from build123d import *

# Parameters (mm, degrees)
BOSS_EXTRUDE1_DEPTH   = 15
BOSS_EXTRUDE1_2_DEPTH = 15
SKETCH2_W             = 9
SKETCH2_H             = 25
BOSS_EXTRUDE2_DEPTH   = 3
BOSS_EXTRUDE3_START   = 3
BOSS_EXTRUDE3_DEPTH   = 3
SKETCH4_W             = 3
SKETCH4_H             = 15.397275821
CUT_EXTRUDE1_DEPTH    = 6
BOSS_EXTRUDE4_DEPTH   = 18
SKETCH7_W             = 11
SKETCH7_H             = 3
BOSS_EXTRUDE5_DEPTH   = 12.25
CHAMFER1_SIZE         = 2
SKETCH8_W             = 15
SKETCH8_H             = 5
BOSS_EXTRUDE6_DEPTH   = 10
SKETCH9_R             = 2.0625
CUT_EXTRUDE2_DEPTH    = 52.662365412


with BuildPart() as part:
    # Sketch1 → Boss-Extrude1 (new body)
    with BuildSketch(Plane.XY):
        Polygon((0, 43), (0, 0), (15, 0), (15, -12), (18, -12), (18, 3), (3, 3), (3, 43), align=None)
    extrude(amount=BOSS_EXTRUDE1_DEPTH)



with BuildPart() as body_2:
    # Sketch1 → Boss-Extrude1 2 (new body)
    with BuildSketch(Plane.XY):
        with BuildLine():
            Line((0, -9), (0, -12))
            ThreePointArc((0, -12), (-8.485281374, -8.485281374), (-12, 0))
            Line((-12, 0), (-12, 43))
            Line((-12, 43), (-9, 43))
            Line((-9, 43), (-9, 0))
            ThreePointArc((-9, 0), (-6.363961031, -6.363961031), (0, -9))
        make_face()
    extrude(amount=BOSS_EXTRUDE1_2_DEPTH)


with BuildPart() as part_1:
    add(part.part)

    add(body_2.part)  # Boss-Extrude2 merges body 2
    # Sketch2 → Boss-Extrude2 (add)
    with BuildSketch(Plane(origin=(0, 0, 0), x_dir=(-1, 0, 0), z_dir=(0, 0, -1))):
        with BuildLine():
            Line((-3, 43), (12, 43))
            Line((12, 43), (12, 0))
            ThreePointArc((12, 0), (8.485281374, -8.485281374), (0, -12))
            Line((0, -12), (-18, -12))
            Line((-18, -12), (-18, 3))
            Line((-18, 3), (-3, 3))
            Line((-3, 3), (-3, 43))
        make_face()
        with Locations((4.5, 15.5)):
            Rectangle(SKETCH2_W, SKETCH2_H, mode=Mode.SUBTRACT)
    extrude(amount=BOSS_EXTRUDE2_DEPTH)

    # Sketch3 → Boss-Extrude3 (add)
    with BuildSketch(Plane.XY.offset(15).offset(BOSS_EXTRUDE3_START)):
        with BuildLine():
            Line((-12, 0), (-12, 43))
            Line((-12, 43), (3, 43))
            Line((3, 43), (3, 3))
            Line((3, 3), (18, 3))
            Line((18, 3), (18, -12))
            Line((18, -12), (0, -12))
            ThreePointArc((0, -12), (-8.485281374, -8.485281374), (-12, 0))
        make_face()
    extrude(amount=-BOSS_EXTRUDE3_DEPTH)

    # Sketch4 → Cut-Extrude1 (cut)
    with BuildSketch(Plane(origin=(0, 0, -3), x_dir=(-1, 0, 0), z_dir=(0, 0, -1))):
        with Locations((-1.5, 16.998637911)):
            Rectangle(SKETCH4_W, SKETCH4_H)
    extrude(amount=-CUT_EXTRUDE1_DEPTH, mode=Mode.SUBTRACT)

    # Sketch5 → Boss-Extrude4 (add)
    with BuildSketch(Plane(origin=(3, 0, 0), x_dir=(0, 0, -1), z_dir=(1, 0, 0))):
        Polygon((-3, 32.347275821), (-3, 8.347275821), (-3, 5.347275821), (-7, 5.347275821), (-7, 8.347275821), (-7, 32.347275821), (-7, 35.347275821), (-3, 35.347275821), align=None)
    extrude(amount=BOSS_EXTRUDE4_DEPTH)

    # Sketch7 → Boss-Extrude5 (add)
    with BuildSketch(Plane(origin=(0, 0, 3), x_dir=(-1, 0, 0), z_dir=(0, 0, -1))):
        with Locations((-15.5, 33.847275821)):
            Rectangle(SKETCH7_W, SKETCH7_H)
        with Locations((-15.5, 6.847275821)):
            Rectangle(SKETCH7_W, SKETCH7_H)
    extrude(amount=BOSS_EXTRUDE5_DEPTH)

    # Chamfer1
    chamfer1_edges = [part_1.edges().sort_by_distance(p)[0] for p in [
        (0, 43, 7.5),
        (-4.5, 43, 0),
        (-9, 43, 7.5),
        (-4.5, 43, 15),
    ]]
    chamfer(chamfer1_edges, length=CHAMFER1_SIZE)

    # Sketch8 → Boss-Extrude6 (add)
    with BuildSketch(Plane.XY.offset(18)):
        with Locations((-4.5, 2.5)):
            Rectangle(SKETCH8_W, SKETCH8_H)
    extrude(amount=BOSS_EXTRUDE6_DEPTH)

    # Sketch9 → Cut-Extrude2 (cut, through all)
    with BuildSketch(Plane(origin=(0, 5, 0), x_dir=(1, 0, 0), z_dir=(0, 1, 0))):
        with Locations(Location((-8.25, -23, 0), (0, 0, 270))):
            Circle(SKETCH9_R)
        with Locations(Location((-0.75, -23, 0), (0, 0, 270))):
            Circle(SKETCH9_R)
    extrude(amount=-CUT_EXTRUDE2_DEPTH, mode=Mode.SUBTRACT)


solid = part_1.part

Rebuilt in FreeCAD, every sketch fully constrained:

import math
import FreeCAD as App
import Part
import Sketcher


def edges_at(feature, points):
    """Names of the edges that pass closest to the given points."""
    edges = feature.Shape.Edges
    near = lambda p: min(range(len(edges)), key=lambda i: edges[i].distToShape(Part.Vertex(*p))[0])
    return sorted({f"Edge{near(p) + 1}" for p in points})

doc = App.newDocument("Part")
body = doc.addObject("PartDesign::Body", "Body")

# Sketch on XY plane
sketch1 = body.newObject("Sketcher::SketchObject", "Sketch")
sketch1.AttachmentSupport = (doc.getObject("XY_Plane"), [""])
sketch1.MapMode = "FlatFace"
sketch1.addGeometry(Part.LineSegment(App.Vector(0, 43, 0), App.Vector(0, 0, 0)), False)
sketch1.addGeometry(Part.LineSegment(App.Vector(0, 0, 0), App.Vector(15, 0, 0)), False)
sketch1.addGeometry(Part.LineSegment(App.Vector(15, 0, 0), App.Vector(15, -12, 0)), False)
sketch1.addGeometry(Part.LineSegment(App.Vector(15, -12, 0), App.Vector(18, -12, 0)), False)
sketch1.addGeometry(Part.LineSegment(App.Vector(18, -12, 0), App.Vector(18, 3, 0)), False)
sketch1.addGeometry(Part.LineSegment(App.Vector(18, 3, 0), App.Vector(3, 3, 0)), False)
sketch1.addGeometry(Part.LineSegment(App.Vector(3, 3, 0), App.Vector(3, 43, 0)), False)
sketch1.addGeometry(Part.LineSegment(App.Vector(3, 43, 0), App.Vector(0, 43, 0)), False)
sketch1.addConstraint(Sketcher.Constraint("Coincident", 0, 2, 1, 1))
sketch1.addConstraint(Sketcher.Constraint("Coincident", 1, 2, 2, 1))
sketch1.addConstraint(Sketcher.Constraint("Coincident", 2, 2, 3, 1))
sketch1.addConstraint(Sketcher.Constraint("Coincident", 3, 2, 4, 1))
sketch1.addConstraint(Sketcher.Constraint("Coincident", 4, 2, 5, 1))
sketch1.addConstraint(Sketcher.Constraint("Coincident", 5, 2, 6, 1))
sketch1.addConstraint(Sketcher.Constraint("Coincident", 6, 2, 7, 1))
sketch1.addConstraint(Sketcher.Constraint("Coincident", 7, 2, 0, 1))
sketch1.addConstraint(Sketcher.Constraint("Vertical", 0))
sketch1.addConstraint(Sketcher.Constraint("Horizontal", 1))
sketch1.addConstraint(Sketcher.Constraint("Vertical", 2))
sketch1.addConstraint(Sketcher.Constraint("Horizontal", 3))
sketch1.addConstraint(Sketcher.Constraint("Vertical", 4))
sketch1.addConstraint(Sketcher.Constraint("Horizontal", 5))
sketch1.addConstraint(Sketcher.Constraint("Vertical", 6))
sketch1.addConstraint(Sketcher.Constraint("Horizontal", 7))
sketch1.addConstraint(Sketcher.Constraint("Coincident", 0, 2, -1, 1))
sketch1.addConstraint(Sketcher.Constraint("Equal", 1, 5))
sketch1.addConstraint(Sketcher.Constraint("Equal", 5, 4))
sketch1.addConstraint(Sketcher.Constraint("DistanceX", 1, 1, 1, 2, 15.0))
sketch1.addConstraint(Sketcher.Constraint("DistanceX", 3, 1, 3, 2, 3.0))
sketch1.addConstraint(Sketcher.Constraint("DistanceY", 0, 2, 0, 1, 43.0))
sketch1.addConstraint(Sketcher.Constraint("DistanceY", 2, 2, 2, 1, 12.0))
pad1 = body.newObject("PartDesign::Pad", "Pad")
pad1.Profile = sketch1
pad1.Length = 15
body2 = doc.addObject("PartDesign::Body", "Body001")

# Sketch on XY plane
sketch2 = body2.newObject("Sketcher::SketchObject", "Sketch001")
sketch2.AttachmentSupport = (doc.getObject("XY_Plane001"), [""])
sketch2.MapMode = "FlatFace"
sketch2.addGeometry(Part.LineSegment(App.Vector(0, -12, 0), App.Vector(0, -9, 0)), False)
sketch2.addGeometry(Part.ArcOfCircle(Part.Circle(App.Vector(0, 0, 0), App.Vector(0, 0, 1), 9), math.radians(180), math.radians(270)), False)
sketch2.addGeometry(Part.LineSegment(App.Vector(-9, 0, 0), App.Vector(-9, 43, 0)), False)
sketch2.addGeometry(Part.LineSegment(App.Vector(-9, 43, 0), App.Vector(-12, 43, 0)), False)
sketch2.addGeometry(Part.LineSegment(App.Vector(-12, 43, 0), App.Vector(-12, 0, 0)), False)
sketch2.addGeometry(Part.ArcOfCircle(Part.Circle(App.Vector(0, 0, 0), App.Vector(0, 0, 1), 12), math.radians(-180), math.radians(-90)), False)
sketch2.addConstraint(Sketcher.Constraint("Coincident", 0, 2, 1, 2))
sketch2.addConstraint(Sketcher.Constraint("Tangent", 1, 1, 2, 1))
sketch2.addConstraint(Sketcher.Constraint("Coincident", 2, 2, 3, 1))
sketch2.addConstraint(Sketcher.Constraint("Coincident", 3, 2, 4, 1))
sketch2.addConstraint(Sketcher.Constraint("Tangent", 4, 2, 5, 1))
sketch2.addConstraint(Sketcher.Constraint("Coincident", 5, 2, 0, 1))
sketch2.addConstraint(Sketcher.Constraint("Vertical", 0))
sketch2.addConstraint(Sketcher.Constraint("Vertical", 2))
sketch2.addConstraint(Sketcher.Constraint("Horizontal", 3))
sketch2.addConstraint(Sketcher.Constraint("Vertical", 4))
sketch2.addConstraint(Sketcher.Constraint("Coincident", 1, 3, -1, 1))
sketch2.addConstraint(Sketcher.Constraint("Coincident", 5, 3, -1, 1))
sketch2.addConstraint(Sketcher.Constraint("PointOnObject", 0, 2, -2))
sketch2.addConstraint(Sketcher.Constraint("Radius", 1, 9.0))
sketch2.addConstraint(Sketcher.Constraint("Radius", 5, 12.0))
sketch2.addConstraint(Sketcher.Constraint("DistanceY", 2, 1, 2, 2, 43.0))
pad2 = body2.newObject("PartDesign::Pad", "Pad001")
pad2.Profile = sketch2
pad2.Length = 15
body.AllowCompound = True
doc.recompute()

boolean = body.newObject("PartDesign::Boolean", "Boolean")
boolean.Type = "Fuse"
boolean.addObjects([body2])

# Sketch on XY plane
sketch3 = body.newObject("Sketcher::SketchObject", "Sketch002")
sketch3.AttachmentSupport = (doc.getObject("XY_Plane"), [""])
sketch3.MapMode = "FlatFace"
sketch3.addGeometry(Part.LineSegment(App.Vector(-12, 43, 0), App.Vector(3, 43, 0)), False)
sketch3.addGeometry(Part.LineSegment(App.Vector(3, 43, 0), App.Vector(3, 3, 0)), False)
sketch3.addGeometry(Part.LineSegment(App.Vector(3, 3, 0), App.Vector(18, 3, 0)), False)
sketch3.addGeometry(Part.LineSegment(App.Vector(18, 3, 0), App.Vector(18, -12, 0)), False)
sketch3.addGeometry(Part.LineSegment(App.Vector(18, -12, 0), App.Vector(0, -12, 0)), False)
sketch3.addGeometry(Part.ArcOfCircle(Part.Circle(App.Vector(0, 0, 0), App.Vector(0, 0, 1), 12), math.radians(-180), math.radians(-90)), False)
sketch3.addGeometry(Part.LineSegment(App.Vector(-12, 0, 0), App.Vector(-12, 43, 0)), False)
sketch3.addGeometry(Part.LineSegment(App.Vector(0, 3, 0), App.Vector(0, 28, 0)), False)
sketch3.addGeometry(Part.LineSegment(App.Vector(0, 28, 0), App.Vector(-9, 28, 0)), False)
sketch3.addGeometry(Part.LineSegment(App.Vector(-9, 28, 0), App.Vector(-9, 3, 0)), False)
sketch3.addGeometry(Part.LineSegment(App.Vector(-9, 3, 0), App.Vector(0, 3, 0)), False)
sketch3.addConstraint(Sketcher.Constraint("Coincident", 0, 2, 1, 1))
sketch3.addConstraint(Sketcher.Constraint("Coincident", 1, 2, 2, 1))
sketch3.addConstraint(Sketcher.Constraint("Coincident", 2, 2, 3, 1))
sketch3.addConstraint(Sketcher.Constraint("Coincident", 3, 2, 4, 1))
sketch3.addConstraint(Sketcher.Constraint("Tangent", 4, 2, 5, 2))
sketch3.addConstraint(Sketcher.Constraint("Tangent", 5, 1, 6, 1))
sketch3.addConstraint(Sketcher.Constraint("Coincident", 6, 2, 0, 1))
sketch3.addConstraint(Sketcher.Constraint("Coincident", 7, 2, 8, 1))
sketch3.addConstraint(Sketcher.Constraint("Coincident", 8, 2, 9, 1))
sketch3.addConstraint(Sketcher.Constraint("Coincident", 9, 2, 10, 1))
sketch3.addConstraint(Sketcher.Constraint("Coincident", 10, 2, 7, 1))
sketch3.addConstraint(Sketcher.Constraint("Horizontal", 0))
sketch3.addConstraint(Sketcher.Constraint("Vertical", 1))
sketch3.addConstraint(Sketcher.Constraint("Horizontal", 2))
sketch3.addConstraint(Sketcher.Constraint("Vertical", 3))
sketch3.addConstraint(Sketcher.Constraint("Horizontal", 4))
sketch3.addConstraint(Sketcher.Constraint("Vertical", 6))
sketch3.addConstraint(Sketcher.Constraint("Vertical", 7))
sketch3.addConstraint(Sketcher.Constraint("Horizontal", 8))
sketch3.addConstraint(Sketcher.Constraint("Vertical", 9))
sketch3.addConstraint(Sketcher.Constraint("Horizontal", 10))
sketch3.addConstraint(Sketcher.Constraint("Coincident", 5, 3, -1, 1))
sketch3.addConstraint(Sketcher.Constraint("PointOnObject", 7, 2, -2))
sketch3.addConstraint(Sketcher.Constraint("Horizontal", 2, 2, 9, 2))
sketch3.addConstraint(Sketcher.Constraint("Equal", 0, 2))
sketch3.addConstraint(Sketcher.Constraint("Equal", 2, 3))
sketch3.addConstraint(Sketcher.Constraint("Radius", 5, 12.0))
sketch3.addConstraint(Sketcher.Constraint("DistanceX", 0, 1, 0, 2, 15.0))
sketch3.addConstraint(Sketcher.Constraint("DistanceX", 8, 2, 8, 1, 9.0))
sketch3.addConstraint(Sketcher.Constraint("DistanceY", 1, 2, 1, 1, 40.0))
sketch3.addConstraint(Sketcher.Constraint("DistanceY", 7, 1, 7, 2, 25.0))
pad3 = body.newObject("PartDesign::Pad", "Pad002")
pad3.Profile = sketch3
pad3.Length = 3
pad3.Reversed = True

# Sketch on XY plane
sketch4 = body.newObject("Sketcher::SketchObject", "Sketch003")
sketch4.AttachmentSupport = (doc.getObject("XY_Plane"), [""])
sketch4.MapMode = "FlatFace"
sketch4.AttachmentOffset = App.Placement(App.Vector(0, 0, 18), App.Rotation())
sketch4.addGeometry(Part.LineSegment(App.Vector(-12, 43, 0), App.Vector(-12, 0, 0)), False)
sketch4.addGeometry(Part.ArcOfCircle(Part.Circle(App.Vector(0, 0, 0), App.Vector(0, 0, 1), 12), math.radians(-180), math.radians(-90)), False)
sketch4.addGeometry(Part.LineSegment(App.Vector(0, -12, 0), App.Vector(18, -12, 0)), False)
sketch4.addGeometry(Part.LineSegment(App.Vector(18, -12, 0), App.Vector(18, 3, 0)), False)
sketch4.addGeometry(Part.LineSegment(App.Vector(18, 3, 0), App.Vector(3, 3, 0)), False)
sketch4.addGeometry(Part.LineSegment(App.Vector(3, 3, 0), App.Vector(3, 43, 0)), False)
sketch4.addGeometry(Part.LineSegment(App.Vector(3, 43, 0), App.Vector(-12, 43, 0)), False)
sketch4.addConstraint(Sketcher.Constraint("Tangent", 0, 2, 1, 1))
sketch4.addConstraint(Sketcher.Constraint("Tangent", 1, 2, 2, 1))
sketch4.addConstraint(Sketcher.Constraint("Coincident", 2, 2, 3, 1))
sketch4.addConstraint(Sketcher.Constraint("Coincident", 3, 2, 4, 1))
sketch4.addConstraint(Sketcher.Constraint("Coincident", 4, 2, 5, 1))
sketch4.addConstraint(Sketcher.Constraint("Coincident", 5, 2, 6, 1))
sketch4.addConstraint(Sketcher.Constraint("Coincident", 6, 2, 0, 1))
sketch4.addConstraint(Sketcher.Constraint("Vertical", 0))
sketch4.addConstraint(Sketcher.Constraint("Horizontal", 2))
sketch4.addConstraint(Sketcher.Constraint("Vertical", 3))
sketch4.addConstraint(Sketcher.Constraint("Horizontal", 4))
sketch4.addConstraint(Sketcher.Constraint("Vertical", 5))
sketch4.addConstraint(Sketcher.Constraint("Horizontal", 6))
sketch4.addConstraint(Sketcher.Constraint("Coincident", 1, 3, -1, 1))
sketch4.addConstraint(Sketcher.Constraint("Equal", 4, 6))
sketch4.addConstraint(Sketcher.Constraint("Equal", 6, 3))
sketch4.addConstraint(Sketcher.Constraint("Radius", 1, 12.0))
sketch4.addConstraint(Sketcher.Constraint("DistanceX", 2, 1, 2, 2, 18.0))
sketch4.addConstraint(Sketcher.Constraint("DistanceY", 0, 2, 0, 1, 43.0))
pad4 = body.newObject("PartDesign::Pad", "Pad003")
pad4.Profile = sketch4
pad4.Length = 3
pad4.Reversed = True

# Sketch on XY plane
sketch5 = body.newObject("Sketcher::SketchObject", "Sketch004")
sketch5.AttachmentSupport = (doc.getObject("XY_Plane"), [""])
sketch5.MapMode = "FlatFace"
sketch5.AttachmentOffset = App.Placement(App.Vector(0, 0, -3), App.Rotation())
sketch5.addGeometry(Part.LineSegment(App.Vector(3, 24.697276, 0), App.Vector(3, 9.3, 0)), False)
sketch5.addGeometry(Part.LineSegment(App.Vector(3, 9.3, 0), App.Vector(0, 9.3, 0)), False)
sketch5.addGeometry(Part.LineSegment(App.Vector(0, 9.3, 0), App.Vector(0, 24.697276, 0)), False)
sketch5.addGeometry(Part.LineSegment(App.Vector(0, 24.697276, 0), App.Vector(3, 24.697276, 0)), False)
sketch5.addConstraint(Sketcher.Constraint("Coincident", 0, 2, 1, 1))
sketch5.addConstraint(Sketcher.Constraint("Coincident", 1, 2, 2, 1))
sketch5.addConstraint(Sketcher.Constraint("Coincident", 2, 2, 3, 1))
sketch5.addConstraint(Sketcher.Constraint("Coincident", 3, 2, 0, 1))
sketch5.addConstraint(Sketcher.Constraint("Vertical", 0))
sketch5.addConstraint(Sketcher.Constraint("Horizontal", 1))
sketch5.addConstraint(Sketcher.Constraint("Vertical", 2))
sketch5.addConstraint(Sketcher.Constraint("Horizontal", 3))
sketch5.addConstraint(Sketcher.Constraint("PointOnObject", 1, 2, -2))
sketch5.addConstraint(Sketcher.Constraint("DistanceX", 1, 2, 1, 1, 3.0))
sketch5.addConstraint(Sketcher.Constraint("DistanceY", -1, 1, 0, 2, 9.3))
sketch5.addConstraint(Sketcher.Constraint("DistanceY", 0, 2, 0, 1, 15.397276))
pocket1 = body.newObject("PartDesign::Pocket", "Pocket")
pocket1.Profile = sketch5
pocket1.Length = 6
pocket1.Reversed = True

# Sketch on YZ plane
sketch6 = body.newObject("Sketcher::SketchObject", "Sketch005")
sketch6.AttachmentSupport = (doc.getObject("YZ_Plane"), [""])
sketch6.MapMode = "FlatFace"
sketch6.AttachmentOffset = App.Placement(App.Vector(0, 0, 3), App.Rotation())
sketch6.addGeometry(Part.LineSegment(App.Vector(5.347276, 3, 0), App.Vector(35.347276, 3, 0)), False)
sketch6.addGeometry(Part.LineSegment(App.Vector(35.347276, 3, 0), App.Vector(35.347276, 7, 0)), False)
sketch6.addGeometry(Part.LineSegment(App.Vector(35.347276, 7, 0), App.Vector(5.347276, 7, 0)), False)
sketch6.addGeometry(Part.LineSegment(App.Vector(5.347276, 7, 0), App.Vector(5.347276, 3, 0)), False)
sketch6.addConstraint(Sketcher.Constraint("Coincident", 0, 2, 1, 1))
sketch6.addConstraint(Sketcher.Constraint("Coincident", 1, 2, 2, 1))
sketch6.addConstraint(Sketcher.Constraint("Coincident", 2, 2, 3, 1))
sketch6.addConstraint(Sketcher.Constraint("Coincident", 3, 2, 0, 1))
sketch6.addConstraint(Sketcher.Constraint("Horizontal", 0))
sketch6.addConstraint(Sketcher.Constraint("Vertical", 1))
sketch6.addConstraint(Sketcher.Constraint("Horizontal", 2))
sketch6.addConstraint(Sketcher.Constraint("Vertical", 3))
sketch6.addConstraint(Sketcher.Constraint("DistanceX", 0, 1, 0, 2, 30.0))
sketch6.addConstraint(Sketcher.Constraint("DistanceY", 1, 1, 1, 2, 4.0))
sketch6.addConstraint(Sketcher.Constraint("DistanceY", -1, 1, 0, 2, 3.0))
sketch6.addConstraint(Sketcher.Constraint("DistanceX", -1, 1, 0, 2, 35.347276))
pad5 = body.newObject("PartDesign::Pad", "Pad004")
pad5.Profile = sketch6
pad5.Length = 18

# Sketch on XY plane
sketch7 = body.newObject("Sketcher::SketchObject", "Sketch006")
sketch7.AttachmentSupport = (doc.getObject("XY_Plane"), [""])
sketch7.MapMode = "FlatFace"
sketch7.AttachmentOffset = App.Placement(App.Vector(0, 0, 3), App.Rotation())
sketch7.addGeometry(Part.LineSegment(App.Vector(21, 35.347276, 0), App.Vector(21, 32.347276, 0)), False)
sketch7.addGeometry(Part.LineSegment(App.Vector(21, 32.347276, 0), App.Vector(10, 32.347276, 0)), False)
sketch7.addGeometry(Part.LineSegment(App.Vector(10, 32.347276, 0), App.Vector(10, 35.347276, 0)), False)
sketch7.addGeometry(Part.LineSegment(App.Vector(10, 35.347276, 0), App.Vector(21, 35.347276, 0)), False)
sketch7.addGeometry(Part.LineSegment(App.Vector(21, 8.347276, 0), App.Vector(21, 5.347276, 0)), False)
sketch7.addGeometry(Part.LineSegment(App.Vector(21, 5.347276, 0), App.Vector(10, 5.347276, 0)), False)
sketch7.addGeometry(Part.LineSegment(App.Vector(10, 5.347276, 0), App.Vector(10, 8.347276, 0)), False)
sketch7.addGeometry(Part.LineSegment(App.Vector(10, 8.347276, 0), App.Vector(21, 8.347276, 0)), False)
sketch7.addConstraint(Sketcher.Constraint("Coincident", 0, 2, 1, 1))
sketch7.addConstraint(Sketcher.Constraint("Coincident", 1, 2, 2, 1))
sketch7.addConstraint(Sketcher.Constraint("Coincident", 2, 2, 3, 1))
sketch7.addConstraint(Sketcher.Constraint("Coincident", 3, 2, 0, 1))
sketch7.addConstraint(Sketcher.Constraint("Coincident", 4, 2, 5, 1))
sketch7.addConstraint(Sketcher.Constraint("Coincident", 5, 2, 6, 1))
sketch7.addConstraint(Sketcher.Constraint("Coincident", 6, 2, 7, 1))
sketch7.addConstraint(Sketcher.Constraint("Coincident", 7, 2, 4, 1))
sketch7.addConstraint(Sketcher.Constraint("Vertical", 0))
sketch7.addConstraint(Sketcher.Constraint("Horizontal", 1))
sketch7.addConstraint(Sketcher.Constraint("Vertical", 2))
sketch7.addConstraint(Sketcher.Constraint("Horizontal", 3))
sketch7.addConstraint(Sketcher.Constraint("Vertical", 4))
sketch7.addConstraint(Sketcher.Constraint("Horizontal", 5))
sketch7.addConstraint(Sketcher.Constraint("Vertical", 6))
sketch7.addConstraint(Sketcher.Constraint("Horizontal", 7))
sketch7.addConstraint(Sketcher.Constraint("Vertical", 3, 2, 4, 2))
sketch7.addConstraint(Sketcher.Constraint("Vertical", 2, 2, 5, 2))
sketch7.addConstraint(Sketcher.Constraint("Equal", 2, 4))
sketch7.addConstraint(Sketcher.Constraint("DistanceX", 1, 2, 1, 1, 11.0))
sketch7.addConstraint(Sketcher.Constraint("DistanceY", 0, 2, 0, 1, 3.0))
sketch7.addConstraint(Sketcher.Constraint("DistanceX", -1, 1, 0, 2, 21.0))
sketch7.addConstraint(Sketcher.Constraint("DistanceY", 4, 2, 0, 2, 27.0))
sketch7.addConstraint(Sketcher.Constraint("DistanceY", -1, 1, 0, 2, 32.347276))
pad6 = body.newObject("PartDesign::Pad", "Pad005")
pad6.Profile = sketch7
pad6.Length = 12.25
pad6.Reversed = True
doc.recompute()

chamfer = body.newObject("PartDesign::Chamfer", "Chamfer")
chamfer.Base = (pad6, edges_at(pad6, [
    (0, 43, 7.5),
    (-4.5, 43, 0),
    (-9, 43, 7.5),
    (-4.5, 43, 15),
]))
chamfer.Size = 2

# Sketch on XY plane
sketch8 = body.newObject("Sketcher::SketchObject", "Sketch007")
sketch8.AttachmentSupport = (doc.getObject("XY_Plane"), [""])
sketch8.MapMode = "FlatFace"
sketch8.AttachmentOffset = App.Placement(App.Vector(0, 0, 18), App.Rotation())
sketch8.addGeometry(Part.LineSegment(App.Vector(-12, 5, 0), App.Vector(-12, 0, 0)), False)
sketch8.addGeometry(Part.LineSegment(App.Vector(-12, 0, 0), App.Vector(3, 0, 0)), False)
sketch8.addGeometry(Part.LineSegment(App.Vector(3, 0, 0), App.Vector(3, 5, 0)), False)
sketch8.addGeometry(Part.LineSegment(App.Vector(3, 5, 0), App.Vector(-12, 5, 0)), False)
sketch8.addConstraint(Sketcher.Constraint("Coincident", 0, 2, 1, 1))
sketch8.addConstraint(Sketcher.Constraint("Coincident", 1, 2, 2, 1))
sketch8.addConstraint(Sketcher.Constraint("Coincident", 2, 2, 3, 1))
sketch8.addConstraint(Sketcher.Constraint("Coincident", 3, 2, 0, 1))
sketch8.addConstraint(Sketcher.Constraint("Vertical", 0))
sketch8.addConstraint(Sketcher.Constraint("Horizontal", 1))
sketch8.addConstraint(Sketcher.Constraint("Vertical", 2))
sketch8.addConstraint(Sketcher.Constraint("Horizontal", 3))
sketch8.addConstraint(Sketcher.Constraint("PointOnObject", 0, 2, -1))
sketch8.addConstraint(Sketcher.Constraint("DistanceX", 1, 1, 1, 2, 15.0))
sketch8.addConstraint(Sketcher.Constraint("DistanceY", 0, 2, 0, 1, 5.0))
sketch8.addConstraint(Sketcher.Constraint("DistanceX", 0, 2, -1, 1, 12.0))
pad7 = body.newObject("PartDesign::Pad", "Pad006")
pad7.Profile = sketch8
pad7.Length = 10

# Sketch on XZ plane
sketch9 = body.newObject("Sketcher::SketchObject", "Sketch008")
sketch9.AttachmentSupport = (doc.getObject("XZ_Plane"), [""])
sketch9.MapMode = "FlatFace"
sketch9.AttachmentOffset = App.Placement(App.Vector(0, 0, -5), App.Rotation())
sketch9.addGeometry(Part.Circle(App.Vector(-8.25, 23, 0), App.Vector(0, 0, 1), 2.0625), False)
sketch9.addGeometry(Part.Circle(App.Vector(-0.75, 23, 0), App.Vector(0, 0, 1), 2.0625), False)
sketch9.addConstraint(Sketcher.Constraint("Equal", 0, 1))
sketch9.addConstraint(Sketcher.Constraint("Horizontal", 0, 3, 1, 3))
sketch9.addConstraint(Sketcher.Constraint("Diameter", 0, 4.125))
sketch9.addConstraint(Sketcher.Constraint("DistanceY", -1, 1, 0, 3, 23.0))
sketch9.addConstraint(Sketcher.Constraint("DistanceX", 0, 3, 1, 3, 7.5))
sketch9.addConstraint(Sketcher.Constraint("DistanceX", 0, 3, -1, 1, 8.25))
pocket2 = body.newObject("PartDesign::Pocket", "Pocket001")
pocket2.Profile = sketch9
pocket2.Type = "ThroughAll"
pocket2.Reversed = True

doc.recompute()
